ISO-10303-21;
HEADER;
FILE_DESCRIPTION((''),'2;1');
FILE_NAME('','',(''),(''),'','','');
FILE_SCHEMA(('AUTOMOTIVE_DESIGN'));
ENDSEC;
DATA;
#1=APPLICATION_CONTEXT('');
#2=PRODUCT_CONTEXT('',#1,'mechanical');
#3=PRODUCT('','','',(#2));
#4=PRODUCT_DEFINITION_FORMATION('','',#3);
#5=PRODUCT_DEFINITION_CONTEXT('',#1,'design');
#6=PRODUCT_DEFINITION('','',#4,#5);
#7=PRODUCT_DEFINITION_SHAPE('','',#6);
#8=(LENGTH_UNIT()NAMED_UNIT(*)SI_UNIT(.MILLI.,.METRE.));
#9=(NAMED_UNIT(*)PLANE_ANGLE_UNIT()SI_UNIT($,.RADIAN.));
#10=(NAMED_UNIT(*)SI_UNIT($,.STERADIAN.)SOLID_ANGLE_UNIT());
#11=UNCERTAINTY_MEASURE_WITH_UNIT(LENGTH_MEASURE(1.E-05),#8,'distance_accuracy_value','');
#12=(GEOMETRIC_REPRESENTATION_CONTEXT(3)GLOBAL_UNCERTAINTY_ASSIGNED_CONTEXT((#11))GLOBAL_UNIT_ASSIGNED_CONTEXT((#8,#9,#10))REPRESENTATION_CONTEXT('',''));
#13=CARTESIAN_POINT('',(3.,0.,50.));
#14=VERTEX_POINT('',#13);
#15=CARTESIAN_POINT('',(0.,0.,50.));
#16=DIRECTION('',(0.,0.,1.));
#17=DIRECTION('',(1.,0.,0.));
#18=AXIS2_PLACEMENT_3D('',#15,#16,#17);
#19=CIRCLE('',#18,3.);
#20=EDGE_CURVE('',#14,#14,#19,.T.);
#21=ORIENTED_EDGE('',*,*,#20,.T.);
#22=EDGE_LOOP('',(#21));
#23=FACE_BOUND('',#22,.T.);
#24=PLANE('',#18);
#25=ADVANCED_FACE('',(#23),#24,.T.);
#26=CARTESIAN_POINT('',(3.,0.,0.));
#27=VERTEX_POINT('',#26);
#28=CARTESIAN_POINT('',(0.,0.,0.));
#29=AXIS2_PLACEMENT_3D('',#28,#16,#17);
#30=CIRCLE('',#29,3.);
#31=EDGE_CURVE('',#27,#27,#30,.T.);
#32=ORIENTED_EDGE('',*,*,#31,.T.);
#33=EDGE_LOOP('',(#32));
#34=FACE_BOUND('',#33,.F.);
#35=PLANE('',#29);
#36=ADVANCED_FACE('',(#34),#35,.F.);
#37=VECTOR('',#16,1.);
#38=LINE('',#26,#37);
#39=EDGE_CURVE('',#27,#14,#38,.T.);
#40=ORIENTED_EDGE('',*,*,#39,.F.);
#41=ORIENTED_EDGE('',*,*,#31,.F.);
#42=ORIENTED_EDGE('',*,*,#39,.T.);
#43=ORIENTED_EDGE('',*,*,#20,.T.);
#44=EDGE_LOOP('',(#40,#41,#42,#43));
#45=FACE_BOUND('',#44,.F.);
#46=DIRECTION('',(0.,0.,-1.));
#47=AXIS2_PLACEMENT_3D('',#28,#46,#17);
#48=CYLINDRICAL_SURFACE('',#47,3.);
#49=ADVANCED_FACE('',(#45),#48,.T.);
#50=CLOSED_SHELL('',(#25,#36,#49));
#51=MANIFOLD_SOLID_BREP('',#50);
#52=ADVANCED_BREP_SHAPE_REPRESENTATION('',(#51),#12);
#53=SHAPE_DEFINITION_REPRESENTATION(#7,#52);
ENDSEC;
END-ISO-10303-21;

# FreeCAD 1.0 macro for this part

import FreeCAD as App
import Part
import Sketcher
Q = App.Units.Quantity

doc = App.newDocument("Part")
body = doc.addObject("PartDesign::Body", "Body")

# Sketch on XY plane
sketch1 = doc.addObject("Sketcher::SketchObject", "Sketch")
body.addObject(sketch1)
sketch1.AttachmentSupport = (doc.XY_Plane, [""])
sketch1.MapMode = "FlatFace"
sketch1.addGeometry(Part.Circle(App.Vector(0, 0, 0), App.Vector(0, 0, 1), 3), False)
sketch1.addConstraint(Sketcher.Constraint("Coincident", 0, 3, -1, 1))
sketch1.addConstraint(Sketcher.Constraint("Diameter", 0, Q("6 mm")))
pad1 = doc.addObject("PartDesign::Pad", "Pad")
body.addObject(pad1)
pad1.Profile = sketch1
pad1.Length = 50

doc.recompute()
